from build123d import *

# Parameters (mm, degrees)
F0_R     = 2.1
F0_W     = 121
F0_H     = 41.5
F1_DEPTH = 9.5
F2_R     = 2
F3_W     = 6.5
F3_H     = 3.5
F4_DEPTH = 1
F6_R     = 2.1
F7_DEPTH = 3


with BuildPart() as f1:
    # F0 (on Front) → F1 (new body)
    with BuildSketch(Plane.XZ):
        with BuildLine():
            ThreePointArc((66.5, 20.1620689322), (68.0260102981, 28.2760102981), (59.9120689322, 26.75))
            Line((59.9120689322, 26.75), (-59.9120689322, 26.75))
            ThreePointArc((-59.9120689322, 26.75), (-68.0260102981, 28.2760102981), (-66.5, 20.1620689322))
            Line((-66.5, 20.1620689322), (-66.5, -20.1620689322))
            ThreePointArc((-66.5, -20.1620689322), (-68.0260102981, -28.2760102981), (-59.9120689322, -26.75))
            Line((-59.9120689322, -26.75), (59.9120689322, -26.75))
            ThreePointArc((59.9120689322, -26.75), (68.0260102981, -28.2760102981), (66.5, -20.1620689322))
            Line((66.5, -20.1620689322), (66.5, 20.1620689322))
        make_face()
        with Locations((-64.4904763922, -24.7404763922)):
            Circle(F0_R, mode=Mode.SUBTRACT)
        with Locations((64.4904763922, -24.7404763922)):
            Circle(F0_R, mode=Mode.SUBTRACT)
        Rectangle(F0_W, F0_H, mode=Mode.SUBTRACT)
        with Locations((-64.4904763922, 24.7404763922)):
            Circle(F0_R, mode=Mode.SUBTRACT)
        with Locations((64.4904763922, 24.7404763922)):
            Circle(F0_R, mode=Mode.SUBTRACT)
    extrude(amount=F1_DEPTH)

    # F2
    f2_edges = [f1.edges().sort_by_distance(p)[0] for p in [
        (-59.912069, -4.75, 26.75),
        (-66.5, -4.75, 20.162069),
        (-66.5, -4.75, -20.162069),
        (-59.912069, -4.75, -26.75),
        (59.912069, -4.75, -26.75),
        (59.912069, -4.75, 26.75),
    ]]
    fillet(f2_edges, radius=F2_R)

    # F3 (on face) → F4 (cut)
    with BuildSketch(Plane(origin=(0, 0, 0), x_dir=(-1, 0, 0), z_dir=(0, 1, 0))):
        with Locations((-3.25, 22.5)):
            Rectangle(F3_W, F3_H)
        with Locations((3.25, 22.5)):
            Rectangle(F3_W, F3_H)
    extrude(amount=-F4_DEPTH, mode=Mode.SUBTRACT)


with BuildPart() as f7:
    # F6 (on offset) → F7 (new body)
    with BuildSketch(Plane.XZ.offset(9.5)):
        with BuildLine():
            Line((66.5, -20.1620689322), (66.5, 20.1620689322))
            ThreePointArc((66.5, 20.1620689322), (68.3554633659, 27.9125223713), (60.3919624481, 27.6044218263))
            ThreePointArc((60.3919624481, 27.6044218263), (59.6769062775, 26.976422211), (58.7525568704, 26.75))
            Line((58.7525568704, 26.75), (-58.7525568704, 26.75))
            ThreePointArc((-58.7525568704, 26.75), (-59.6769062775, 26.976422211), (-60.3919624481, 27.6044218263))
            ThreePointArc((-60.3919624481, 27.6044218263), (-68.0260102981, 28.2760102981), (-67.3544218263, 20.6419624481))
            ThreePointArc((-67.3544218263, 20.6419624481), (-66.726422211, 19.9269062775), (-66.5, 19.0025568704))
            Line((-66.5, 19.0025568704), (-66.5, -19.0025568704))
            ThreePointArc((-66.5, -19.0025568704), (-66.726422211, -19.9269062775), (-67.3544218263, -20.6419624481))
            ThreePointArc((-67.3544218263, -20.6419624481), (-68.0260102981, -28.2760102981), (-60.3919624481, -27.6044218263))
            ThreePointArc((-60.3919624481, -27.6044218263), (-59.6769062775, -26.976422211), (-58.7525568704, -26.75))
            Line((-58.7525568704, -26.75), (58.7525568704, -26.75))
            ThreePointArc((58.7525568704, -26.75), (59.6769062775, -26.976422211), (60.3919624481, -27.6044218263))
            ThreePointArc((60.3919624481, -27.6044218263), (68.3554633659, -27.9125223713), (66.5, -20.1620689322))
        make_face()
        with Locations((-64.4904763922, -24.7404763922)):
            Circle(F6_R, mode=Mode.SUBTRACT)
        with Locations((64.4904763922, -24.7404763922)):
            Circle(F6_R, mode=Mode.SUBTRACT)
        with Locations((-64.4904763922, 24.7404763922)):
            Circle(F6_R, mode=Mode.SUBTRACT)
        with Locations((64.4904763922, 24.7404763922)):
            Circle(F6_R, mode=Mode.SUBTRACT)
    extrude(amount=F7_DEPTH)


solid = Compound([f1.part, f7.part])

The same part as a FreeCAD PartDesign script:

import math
import FreeCAD as App
import Part
import Sketcher

V = App.Vector


def edges_at(feature, points):
    """Names of the edges that pass closest to the given points."""
    edges = feature.Shape.Edges
    near = lambda p: min(range(len(edges)), key=lambda i: edges[i].distToShape(Part.Vertex(*p))[0])
    return sorted({f"Edge{near(p) + 1}" for p in points})


def add_polygon(sketch, points):
    """Adds a closed chain of lines whose ends are joined by coincident constraints."""
    first, n = sketch.GeometryCount, len(points)
    for a, b in zip(points, points[1:] + points[:1]):
        sketch.addGeometry(Part.LineSegment(App.Vector(*a, 0), App.Vector(*b, 0)), False)
    for i in range(n):
        sketch.addConstraint(Sketcher.Constraint("Coincident", first + i, 2, first + (i + 1) % n, 1))

doc = App.newDocument("Part")
body = doc.addObject("PartDesign::Body", "Body")

# Sketch on XZ plane
sketch1 = doc.addObject("Sketcher::SketchObject", "Sketch")
body.addObject(sketch1)
sketch1.AttachmentSupport = (doc.XZ_Plane, [""])
sketch1.MapMode = "FlatFace"
sketch1.addGeometry(Part.ArcOfCircle(Part.Circle(V(64.490476, 24.740476, 0), V(0, 0, 1), 5), math.radians(-66.302694), math.radians(156.302694)), False)  # 0
sketch1.addGeometry(Part.LineSegment(V(59.912069, 26.75, 0), V(-59.912069, 26.75, 0)), False)  # 1
sketch1.addGeometry(Part.ArcOfCircle(Part.Circle(V(-64.490476, 24.740476, 0), V(0, 0, 1), 5), math.radians(23.697306), math.radians(246.302694)), False)  # 2
sketch1.addGeometry(Part.LineSegment(V(-66.5, 20.162069, 0), V(-66.5, -20.162069, 0)), False)  # 3
sketch1.addGeometry(Part.ArcOfCircle(Part.Circle(V(-64.490476, -24.740476, 0), V(0, 0, 1), 5), math.radians(113.697306), math.radians(336.302694)), False)  # 4
sketch1.addGeometry(Part.LineSegment(V(-59.912069, -26.75, 0), V(59.912069, -26.75, 0)), False)  # 5
sketch1.addGeometry(Part.ArcOfCircle(Part.Circle(V(64.490476, -24.740476, 0), V(0, 0, 1), 5), math.radians(-156.302694), math.radians(66.302694)), False)  # 6
sketch1.addGeometry(Part.LineSegment(V(66.5, -20.162069, 0), V(66.5, 20.162069, 0)), False)  # 7
sketch1.addGeometry(Part.Circle(V(-64.490476, -24.740476, 0), V(0, 0, 1), 2.1), False)  # 8
sketch1.addGeometry(Part.Circle(V(64.490476, -24.740476, 0), V(0, 0, 1), 2.1), False)  # 9
add_polygon(sketch1, [(60.5, -20.75), (-60.5, -20.75), (-60.5, 20.75), (60.5, 20.75)])  # lines 10-13
sketch1.addGeometry(Part.Circle(V(-64.490476, 24.740476, 0), V(0, 0, 1), 2.1), False)  # 14
sketch1.addGeometry(Part.Circle(V(64.490476, 24.740476, 0), V(0, 0, 1), 2.1), False)  # 15
sketch1.addConstraint(Sketcher.Constraint("Coincident", 0, 2, 1, 1))
sketch1.addConstraint(Sketcher.Constraint("Coincident", 1, 2, 2, 1))
sketch1.addConstraint(Sketcher.Constraint("Coincident", 2, 2, 3, 1))
sketch1.addConstraint(Sketcher.Constraint("Coincident", 3, 2, 4, 1))
sketch1.addConstraint(Sketcher.Constraint("Coincident", 4, 2, 5, 1))
sketch1.addConstraint(Sketcher.Constraint("Coincident", 5, 2, 6, 1))
sketch1.addConstraint(Sketcher.Constraint("Coincident", 6, 2, 7, 1))
sketch1.addConstraint(Sketcher.Constraint("Coincident", 7, 2, 0, 1))
sketch1.addConstraint(Sketcher.Constraint("Horizontal", 1))
sketch1.addConstraint(Sketcher.Constraint("Vertical", 3))
sketch1.addConstraint(Sketcher.Constraint("Horizontal", 5))
sketch1.addConstraint(Sketcher.Constraint("Vertical", 7))
sketch1.addConstraint(Sketcher.Constraint("Horizontal", 10))
sketch1.addConstraint(Sketcher.Constraint("Vertical", 11))
sketch1.addConstraint(Sketcher.Constraint("Horizontal", 12))
sketch1.addConstraint(Sketcher.Constraint("Vertical", 13))
sketch1.addConstraint(Sketcher.Constraint("Coincident", 8, 3, 4, 3))
sketch1.addConstraint(Sketcher.Constraint("Coincident", 9, 3, 6, 3))
sketch1.addConstraint(Sketcher.Constraint("Coincident", 14, 3, 2, 3))
sketch1.addConstraint(Sketcher.Constraint("Coincident", 15, 3, 0, 3))
sketch1.addConstraint(Sketcher.Constraint("Equal", 0, 2))
sketch1.addConstraint(Sketcher.Constraint("Equal", 2, 4))
sketch1.addConstraint(Sketcher.Constraint("Equal", 4, 6))
sketch1.addConstraint(Sketcher.Constraint("Equal", 8, 9))
sketch1.addConstraint(Sketcher.Constraint("Equal", 9, 14))
sketch1.addConstraint(Sketcher.Constraint("Equal", 14, 15))
sketch1.addConstraint(Sketcher.Constraint("Symmetric", 0, 3, 4, 3, -1, 1))
sketch1.addConstraint(Sketcher.Constraint("Symmetric", 2, 3, 6, 3, -1, 1))
sketch1.addConstraint(Sketcher.Constraint("Symmetric", 10, 2, 12, 2, -1, 1))
sketch1.addConstraint(Sketcher.Constraint("Symmetric", 0, 3, 2, 3, -2))
sketch1.addConstraint(Sketcher.Constraint("Horizontal", 3, 2, 6, 2))
sketch1.addConstraint(Sketcher.Constraint("Vertical", 1, 2, 4, 2))
sketch1.addConstraint(Sketcher.Constraint("Radius", 0, 5.0))
sketch1.addConstraint(Sketcher.Constraint("Diameter", 8, 4.2))
sketch1.addConstraint(Sketcher.Constraint("DistanceX", 10, 2, 10, 1, 121.0))
sketch1.addConstraint(Sketcher.Constraint("DistanceY", 11, 1, 11, 2, 41.5))
sketch1.addConstraint(Sketcher.Constraint("DistanceY", 4, 2, 10, 2, 6.0))
sketch1.addConstraint(Sketcher.Constraint("DistanceX", 3, 2, 10, 2, 6.0))
sketch1.addConstraint(Sketcher.Constraint("DistanceX", 1, 2, 1, 1, 119.824138))
sketch1.addConstraint(Sketcher.Constraint("DistanceY", 3, 2, 3, 1, 40.324138))
pad1 = doc.addObject("PartDesign::Pad", "Pad")
body.addObject(pad1)
pad1.Profile = sketch1
pad1.Length = 9.5
doc.recompute()

fillet = doc.addObject("PartDesign::Fillet", "Fillet")
body.addObject(fillet)
fillet.Base = (pad1, edges_at(pad1, [
    (-59.912, -4.75, 26.75),
    (-66.5, -4.75, 20.162),
    (-66.5, -4.75, -20.162),
    (-59.912, -4.75, -26.75),
    (59.912, -4.75, -26.75),
    (59.912, -4.75, 26.75),
]))
fillet.Radius = 2

# Sketch on XZ plane
sketch2 = doc.addObject("Sketcher::SketchObject", "Sketch001")
body.addObject(sketch2)
sketch2.AttachmentSupport = (doc.XZ_Plane, [""])
sketch2.MapMode = "FlatFace"
add_polygon(sketch2, [(6.5, 24.25), (6.5, 20.75), (-6.5, 20.75), (-6.5, 24.25)])  # lines 0-3
sketch2.addConstraint(Sketcher.Constraint("Vertical", 0))
sketch2.addConstraint(Sketcher.Constraint("Horizontal", 1))
sketch2.addConstraint(Sketcher.Constraint("Vertical", 2))
sketch2.addConstraint(Sketcher.Constraint("Horizontal", 3))
sketch2.addConstraint(Sketcher.Constraint("DistanceX", 1, 2, 1, 1, 13.0))
sketch2.addConstraint(Sketcher.Constraint("DistanceY", 0, 2, 0, 1, 3.5))
sketch2.addConstraint(Sketcher.Constraint("DistanceX", -1, 1, 0, 2, 6.5))
sketch2.addConstraint(Sketcher.Constraint("DistanceY", -1, 1, 0, 2, 20.75))
pocket1 = doc.addObject("PartDesign::Pocket", "Pocket")
body.addObject(pocket1)
pocket1.Profile = sketch2
pocket1.Length = 1
pocket1.Reversed = True
body2 = doc.addObject("PartDesign::Body", "Body001")

# Sketch on XZ plane
sketch3 = doc.addObject("Sketcher::SketchObject", "Sketch002")
body2.addObject(sketch3)
sketch3.AttachmentSupport = (doc.getObject("XZ_Plane001"), [""])
sketch3.MapMode = "FlatFace"
sketch3.AttachmentOffset = App.Placement(V(0, 0, 9.5), App.Rotation())
sketch3.addGeometry(Part.LineSegment(V(66.5, -20.162069, 0), V(66.5, 20.162069, 0)), False)
sketch3.addGeometry(Part.ArcOfCircle(Part.Circle(V(64.490476, 24.740476, 0), V(0, 0, 1), 5), math.radians(-66.302694), math.radians(145.055053)), False)
sketch3.addGeometry(Part.ArcOfCircle(Part.Circle(V(58.752557, 28.75, 0), V(0, 0, 1), 2), math.radians(-90), math.radians(-34.944947)), False)
sketch3.addGeometry(Part.LineSegment(V(58.752557, 26.75, 0), V(-58.752557, 26.75, 0)), False)
sketch3.addGeometry(Part.ArcOfCircle(Part.Circle(V(-58.752557, 28.75, 0), V(0, 0, 1), 2), math.radians(-145.055053), math.radians(-90)), False)
sketch3.addGeometry(Part.ArcOfCircle(Part.Circle(V(-64.490476, 24.740476, 0), V(0, 0, 1), 5), math.radians(34.944947), math.radians(235.055053)), False)
sketch3.addGeometry(Part.ArcOfCircle(Part.Circle(V(-68.5, 19.002557, 0), V(0, 0, 1), 2), math.radians(0), math.radians(55.055053)), False)
sketch3.addGeometry(Part.LineSegment(V(-66.5, 19.002557, 0), V(-66.5, -19.002557, 0)), False)
sketch3.addGeometry(Part.ArcOfCircle(Part.Circle(V(-68.5, -19.002557, 0), V(0, 0, 1), 2), math.radians(-55.055053), math.radians(0)), False)
sketch3.addGeometry(Part.ArcOfCircle(Part.Circle(V(-64.490476, -24.740476, 0), V(0, 0, 1), 5), math.radians(124.944947), math.radians(325.055053)), False)
sketch3.addGeometry(Part.ArcOfCircle(Part.Circle(V(-58.752557, -28.75, 0), V(0, 0, 1), 2), math.radians(90), math.radians(145.055053)), False)
sketch3.addGeometry(Part.LineSegment(V(-58.752557, -26.75, 0), V(58.752557, -26.75, 0)), False)
sketch3.addGeometry(Part.ArcOfCircle(Part.Circle(V(58.752557, -28.75, 0), V(0, 0, 1), 2), math.radians(34.944947), math.radians(90)), False)
sketch3.addGeometry(Part.ArcOfCircle(Part.Circle(V(64.490476, -24.740476, 0), V(0, 0, 1), 5), math.radians(-145.055053), math.radians(66.302694)), False)
sketch3.addGeometry(Part.Circle(V(-64.490476, -24.740476, 0), V(0, 0, 1), 2.1), False)
sketch3.addGeometry(Part.Circle(V(64.490476, -24.740476, 0), V(0, 0, 1), 2.1), False)
sketch3.addGeometry(Part.Circle(V(-64.490476, 24.740476, 0), V(0, 0, 1), 2.1), False)
sketch3.addGeometry(Part.Circle(V(64.490476, 24.740476, 0), V(0, 0, 1), 2.1), False)
sketch3.addConstraint(Sketcher.Constraint("Coincident", 0, 2, 1, 1))
sketch3.addConstraint(Sketcher.Constraint("Tangent", 1, 2, 2, 2))
sketch3.addConstraint(Sketcher.Constraint("Tangent", 2, 1, 3, 1))
sketch3.addConstraint(Sketcher.Constraint("Tangent", 3, 2, 4, 2))
sketch3.addConstraint(Sketcher.Constraint("Tangent", 4, 1, 5, 1))
sketch3.addConstraint(Sketcher.Constraint("Tangent", 5, 2, 6, 2))
sketch3.addConstraint(Sketcher.Constraint("Tangent", 6, 1, 7, 1))
sketch3.addConstraint(Sketcher.Constraint("Tangent", 7, 2, 8, 2))
sketch3.addConstraint(Sketcher.Constraint("Tangent", 8, 1, 9, 1))
sketch3.addConstraint(Sketcher.Constraint("Tangent", 9, 2, 10, 2))
sketch3.addConstraint(Sketcher.Constraint("Tangent", 10, 1, 11, 1))
sketch3.addConstraint(Sketcher.Constraint("Tangent", 11, 2, 12, 2))
sketch3.addConstraint(Sketcher.Constraint("Tangent", 12, 1, 13, 1))
sketch3.addConstraint(Sketcher.Constraint("Coincident", 13, 2, 0, 1))
sketch3.addConstraint(Sketcher.Constraint("Vertical", 0))
sketch3.addConstraint(Sketcher.Constraint("Horizontal", 3))
sketch3.addConstraint(Sketcher.Constraint("Vertical", 7))
sketch3.addConstraint(Sketcher.Constraint("Horizontal", 11))
sketch3.addConstraint(Sketcher.Constraint("Coincident", 14, 3, 9, 3))
sketch3.addConstraint(Sketcher.Constraint("Coincident", 15, 3, 13, 3))
sketch3.addConstraint(Sketcher.Constraint("Coincident", 16, 3, 5, 3))
sketch3.addConstraint(Sketcher.Constraint("Coincident", 17, 3, 1, 3))
sketch3.addConstraint(Sketcher.Constraint("Equal", 2, 4))
sketch3.addConstraint(Sketcher.Constraint("Equal", 1, 5))
sketch3.addConstraint(Sketcher.Constraint("Equal", 4, 6))
sketch3.addConstraint(Sketcher.Constraint("Equal", 6, 8))
sketch3.addConstraint(Sketcher.Constraint("Equal", 5, 9))
sketch3.addConstraint(Sketcher.Constraint("Equal", 8, 10))
sketch3.addConstraint(Sketcher.Constraint("Equal", 10, 12))
sketch3.addConstraint(Sketcher.Constraint("Equal", 9, 13))
sketch3.addConstraint(Sketcher.Constraint("Equal", 14, 15))
sketch3.addConstraint(Sketcher.Constraint("Equal", 15, 16))
sketch3.addConstraint(Sketcher.Constraint("Equal", 16, 17))
sketch3.addConstraint(Sketcher.Constraint("Symmetric", 1, 3, 9, 3, -1, 1))
sketch3.addConstraint(Sketcher.Constraint("Symmetric", 4, 3, 12, 3, -1, 1))
sketch3.addConstraint(Sketcher.Constraint("Symmetric", 1, 3, 5, 3, -2))
sketch3.addConstraint(Sketcher.Constraint("Horizontal", 9, 3, 13, 3))
sketch3.addConstraint(Sketcher.Constraint("Radius", 1, 5.0))
sketch3.addConstraint(Sketcher.Constraint("Radius", 2, 2.0))
sketch3.addConstraint(Sketcher.Constraint("Diameter", 14, 4.2))
sketch3.addConstraint(Sketcher.Constraint("DistanceX", 6, 3, -1, 1, 68.5))
sketch3.addConstraint(Sketcher.Constraint("DistanceX", -1, 1, 0, 2, 66.5))
sketch3.addConstraint(Sketcher.Constraint("DistanceY", 10, 3, 4, 3, 57.5))
sketch3.addConstraint(Sketcher.Constraint("DistanceY", 13, 3, 1, 2, 52.344898))
sketch3.addConstraint(Sketcher.Constraint("DistanceX", 3, 2, 3, 1, 117.505114))
pad2 = doc.addObject("PartDesign::Pad", "Pad001")
body2.addObject(pad2)
pad2.Profile = sketch3
pad2.Length = 3

doc.recompute()
